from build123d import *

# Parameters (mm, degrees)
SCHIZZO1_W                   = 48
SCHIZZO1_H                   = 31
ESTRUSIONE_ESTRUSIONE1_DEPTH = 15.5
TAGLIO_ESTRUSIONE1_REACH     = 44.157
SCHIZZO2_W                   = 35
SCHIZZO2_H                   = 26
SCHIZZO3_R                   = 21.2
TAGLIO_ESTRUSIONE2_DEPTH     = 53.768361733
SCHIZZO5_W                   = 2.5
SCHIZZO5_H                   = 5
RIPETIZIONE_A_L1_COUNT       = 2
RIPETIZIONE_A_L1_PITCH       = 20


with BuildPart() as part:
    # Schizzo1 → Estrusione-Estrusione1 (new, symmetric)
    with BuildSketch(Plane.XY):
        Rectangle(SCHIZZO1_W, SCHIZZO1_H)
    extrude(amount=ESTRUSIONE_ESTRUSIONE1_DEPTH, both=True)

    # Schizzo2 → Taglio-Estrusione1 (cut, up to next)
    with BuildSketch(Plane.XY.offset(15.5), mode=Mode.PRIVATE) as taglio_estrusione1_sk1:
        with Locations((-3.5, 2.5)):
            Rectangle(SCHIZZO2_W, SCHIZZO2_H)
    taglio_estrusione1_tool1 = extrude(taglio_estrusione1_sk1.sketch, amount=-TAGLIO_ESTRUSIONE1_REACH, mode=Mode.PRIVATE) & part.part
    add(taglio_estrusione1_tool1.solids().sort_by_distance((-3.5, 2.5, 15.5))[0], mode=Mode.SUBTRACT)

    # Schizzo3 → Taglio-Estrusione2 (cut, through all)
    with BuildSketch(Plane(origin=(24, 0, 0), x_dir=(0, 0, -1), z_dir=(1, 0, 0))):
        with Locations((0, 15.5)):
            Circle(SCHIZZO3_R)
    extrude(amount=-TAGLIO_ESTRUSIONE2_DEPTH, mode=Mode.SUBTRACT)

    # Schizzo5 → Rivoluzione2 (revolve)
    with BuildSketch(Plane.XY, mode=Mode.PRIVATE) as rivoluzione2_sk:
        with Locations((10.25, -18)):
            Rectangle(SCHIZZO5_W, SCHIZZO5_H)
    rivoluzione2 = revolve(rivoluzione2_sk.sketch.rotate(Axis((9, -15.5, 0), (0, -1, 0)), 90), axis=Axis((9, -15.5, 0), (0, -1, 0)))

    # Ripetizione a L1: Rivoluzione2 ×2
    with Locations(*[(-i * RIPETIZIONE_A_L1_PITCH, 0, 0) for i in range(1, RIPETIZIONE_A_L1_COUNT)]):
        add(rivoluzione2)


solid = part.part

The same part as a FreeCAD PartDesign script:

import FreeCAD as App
import Part
import Sketcher


def add_polygon(sketch, points):
    """Adds a closed chain of lines whose ends are joined by coincident constraints."""
    first, n = sketch.GeometryCount, len(points)
    for a, b in zip(points, points[1:] + points[:1]):
        sketch.addGeometry(Part.LineSegment(App.Vector(*a, 0), App.Vector(*b, 0)), False)
    for i in range(n):
        sketch.addConstraint(Sketcher.Constraint("Coincident", first + i, 2, first + (i + 1) % n, 1))

doc = App.newDocument("Part")
params = doc.addObject("Spreadsheet::Sheet", "Params")
for row, (alias, value) in enumerate([
    ("sketch1_width", "48 mm"),
    ("sketch1_height", "31 mm"),
    ("pad1_length", "31 mm"),
    ("sketch2_width", "35 mm"),
    ("sketch2_height", "26 mm"),
    ("sketch3_diameter", "42.4 mm"),
    ("sketch4_height", "5 mm"),
    ("sketch4_width", "2.5 mm"),
    ("revolution_angle", "360 deg"),
    ("linearpattern_pitch", "20 mm"),
], start=1):
    params.set(f"A{row}", alias)
    params.set(f"B{row}", "=" + value)
    params.setAlias(f"B{row}", alias)

body = doc.addObject("PartDesign::Body", "Body")

sketch1 = body.newObject("Sketcher::SketchObject", "Sketch")
sketch1.AttachmentSupport = (doc.getObject("XY_Plane"), [""])
sketch1.MapMode = "FlatFace"
add_polygon(sketch1, [(-24, 16), (-24, -16), (24, -16), (24, 16)])
sketch1.addConstraint([
    Sketcher.Constraint("Vertical", 0),
    Sketcher.Constraint("Horizontal", 1),
    Sketcher.Constraint("Vertical", 2),
    Sketcher.Constraint("Horizontal", 3),
    Sketcher.Constraint("Symmetric", 0, 2, 2, 2, -1, 1),
    Sketcher.Constraint("DistanceX", 1, 1, 1, 2, 48.0),
    Sketcher.Constraint("DistanceY", 0, 2, 0, 1, 31.0),
])
sketch1.setExpression("Constraints[9]", "Params.sketch1_width")
sketch1.setExpression("Constraints[10]", "Params.sketch1_height")
pad1 = body.newObject("PartDesign::Pad", "Pad")
pad1.Profile = sketch1
pad1.setExpression("Length", "Params.pad1_length")
pad1.Midplane = True

sketch2 = body.newObject("Sketcher::SketchObject", "Sketch001")
sketch2.AttachmentSupport = (doc.getObject("XY_Plane"), [""])
sketch2.MapMode = "FlatFace"
sketch2.AttachmentOffset = App.Placement(App.Vector(0, 0, 15.5), App.Rotation())
add_polygon(sketch2, [(-21, 16), (-21, -10), (14, -10), (14, 16)])
sketch2.addConstraint([
    Sketcher.Constraint("Vertical", 0),
    Sketcher.Constraint("Horizontal", 1),
    Sketcher.Constraint("Vertical", 2),
    Sketcher.Constraint("Horizontal", 3),
    Sketcher.Constraint("DistanceX", 1, 1, 1, 2, 35.0),
    Sketcher.Constraint("DistanceY", 0, 2, 0, 1, 26.0),
    Sketcher.Constraint("DistanceX", 0, 2, -1, 1, 21.0),
    Sketcher.Constraint("DistanceY", 0, 2, -1, 1, 10.5),
])
sketch2.setExpression("Constraints[8]", "Params.sketch2_width")
sketch2.setExpression("Constraints[9]", "Params.sketch2_height")
pocket1 = body.newObject("PartDesign::Pocket", "Pocket")
pocket1.Profile = sketch2
pocket1.Type = "UpToFirst"

sketch3 = body.newObject("Sketcher::SketchObject", "Sketch002")
sketch3.AttachmentSupport = (doc.getObject("YZ_Plane"), [""])
sketch3.MapMode = "FlatFace"
sketch3.AttachmentOffset = App.Placement(App.Vector(0, 0, 24), App.Rotation())
sketch3.addGeometry(Part.Circle(App.Vector(16, 0, 0), App.Vector(0, 0, 1), 21), False)
sketch3.addConstraint([
    Sketcher.Constraint("PointOnObject", 0, 3, -1),
    Sketcher.Constraint("Diameter", 0, 42.4),
    Sketcher.Constraint("DistanceX", -1, 1, 0, 3, 15.5),
])
sketch3.setExpression("Constraints[1]", "Params.sketch3_diameter")
pocket2 = body.newObject("PartDesign::Pocket", "Pocket001")
pocket2.Profile = sketch3
pocket2.Type = "ThroughAll"

sketch4 = body.newObject("Sketcher::SketchObject", "Sketch003")
sketch4.AttachmentSupport = (doc.getObject("XY_Plane"), [""])
sketch4.MapMode = "FlatFace"
add_polygon(sketch4, [(9, -15.5), (9, -20.5), (11.5, -20.5), (11.5, -15.5)])
sketch4.addGeometry(Part.LineSegment(App.Vector(9, -15.5, 0), App.Vector(9, -20.5, 0)), True)
sketch4.addConstraint([
    Sketcher.Constraint("Vertical", 0),
    Sketcher.Constraint("Horizontal", 1),
    Sketcher.Constraint("Vertical", 2),
    Sketcher.Constraint("Horizontal", 3),
    Sketcher.Constraint("Vertical", 4),
    Sketcher.Constraint("Coincident", 4, 1, 3, 2),
    Sketcher.Constraint("Horizontal", 1, 2, 4, 2),
    Sketcher.Constraint("DistanceY", 0, 2, 0, 1, 5.0),
    Sketcher.Constraint("DistanceX", 1, 1, 1, 2, 2.5),
    Sketcher.Constraint("DistanceX", -1, 1, 0, 2, 9.0),
    Sketcher.Constraint("DistanceY", 0, 2, -1, 1, 20.5),
])
sketch4.setExpression("Constraints[11]", "Params.sketch4_height")
sketch4.setExpression("Constraints[12]", "Params.sketch4_width")
revolution = body.newObject("PartDesign::Revolution", "Revolution")
revolution.Profile = sketch4
revolution.ReferenceAxis = (sketch4, ["Axis0"])
revolution.setExpression("Angle", "Params.revolution_angle")
doc.recompute()

linearpattern = body.newObject("PartDesign::LinearPattern", "LinearPattern")
linearpattern.Originals = [revolution]
linearpattern.Direction = (doc.getObject("X_Axis"), [""])
linearpattern.Mode = "offset"
linearpattern.setExpression("Offset", "Params.linearpattern_pitch")
linearpattern.Occurrences = 2
linearpattern.Reversed = True
body.Tip = linearpattern

doc.recompute()
